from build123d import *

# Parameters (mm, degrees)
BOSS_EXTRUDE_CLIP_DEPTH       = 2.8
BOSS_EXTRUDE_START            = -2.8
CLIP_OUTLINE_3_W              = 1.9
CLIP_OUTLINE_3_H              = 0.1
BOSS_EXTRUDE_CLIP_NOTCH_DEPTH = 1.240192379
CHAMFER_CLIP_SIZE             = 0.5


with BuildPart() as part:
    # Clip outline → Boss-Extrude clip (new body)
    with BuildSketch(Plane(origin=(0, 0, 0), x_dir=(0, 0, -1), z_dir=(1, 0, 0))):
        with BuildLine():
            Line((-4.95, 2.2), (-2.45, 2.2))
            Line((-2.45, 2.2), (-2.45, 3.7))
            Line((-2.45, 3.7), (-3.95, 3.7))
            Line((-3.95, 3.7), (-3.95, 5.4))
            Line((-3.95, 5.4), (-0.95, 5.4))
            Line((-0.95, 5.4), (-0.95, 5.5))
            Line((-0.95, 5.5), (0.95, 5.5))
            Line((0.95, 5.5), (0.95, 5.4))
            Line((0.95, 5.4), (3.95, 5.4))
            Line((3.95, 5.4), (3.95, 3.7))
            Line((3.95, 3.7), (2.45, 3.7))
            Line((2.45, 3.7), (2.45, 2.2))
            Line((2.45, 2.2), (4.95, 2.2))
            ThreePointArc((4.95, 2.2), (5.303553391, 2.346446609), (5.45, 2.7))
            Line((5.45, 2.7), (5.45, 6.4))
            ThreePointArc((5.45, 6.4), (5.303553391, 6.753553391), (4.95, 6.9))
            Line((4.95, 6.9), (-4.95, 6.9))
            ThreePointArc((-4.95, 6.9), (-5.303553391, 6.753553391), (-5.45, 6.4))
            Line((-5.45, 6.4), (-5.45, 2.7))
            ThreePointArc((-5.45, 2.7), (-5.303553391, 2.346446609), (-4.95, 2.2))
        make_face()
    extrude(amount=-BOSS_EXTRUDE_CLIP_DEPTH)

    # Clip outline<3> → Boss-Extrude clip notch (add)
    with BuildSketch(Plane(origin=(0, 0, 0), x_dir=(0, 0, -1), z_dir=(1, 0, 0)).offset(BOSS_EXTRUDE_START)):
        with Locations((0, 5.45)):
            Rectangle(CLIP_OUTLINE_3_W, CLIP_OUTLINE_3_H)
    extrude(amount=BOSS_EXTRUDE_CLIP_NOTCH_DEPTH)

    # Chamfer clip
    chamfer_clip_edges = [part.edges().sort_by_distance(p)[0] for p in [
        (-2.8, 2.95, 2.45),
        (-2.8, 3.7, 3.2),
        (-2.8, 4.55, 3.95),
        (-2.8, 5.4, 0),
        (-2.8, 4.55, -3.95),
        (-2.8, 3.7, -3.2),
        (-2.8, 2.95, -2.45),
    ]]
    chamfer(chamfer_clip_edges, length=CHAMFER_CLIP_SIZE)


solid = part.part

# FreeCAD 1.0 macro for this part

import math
import FreeCAD as App
import Part
import Sketcher
from FreeCAD import Vector
Q = App.Units.Quantity


def edges_at(feature, points):
    """Names of the edges that pass closest to the given points."""
    edges = feature.Shape.Edges
    near = lambda p: min(range(len(edges)), key=lambda i: edges[i].distToShape(Part.Vertex(*p))[0])
    return sorted({f"Edge{near(p) + 1}" for p in points})


def add_polygon(sketch, points):
    """Adds a closed chain of lines whose ends are joined by coincident constraints."""
    first, n = sketch.GeometryCount, len(points)
    for a, b in zip(points, points[1:] + points[:1]):
        sketch.addGeometry(Part.LineSegment(App.Vector(*a, 0), App.Vector(*b, 0)), False)
    for i in range(n):
        sketch.addConstraint(Sketcher.Constraint("Coincident", first + i, 2, first + (i + 1) % n, 1))

doc = App.newDocument("Part")
body = doc.addObject("PartDesign::Body", "Body")

# Sketch on YZ plane
sketch1 = body.newObject("Sketcher::SketchObject", "Sketch")
sketch1.AttachmentSupport = (doc.getObject("YZ_Plane"), [""])
sketch1.MapMode = "FlatFace"
sketch1.addGeometry(Part.LineSegment(Vector(2.2, 4.95, 0), Vector(2.2, 2.45, 0)), False)
sketch1.addGeometry(Part.LineSegment(Vector(2.2, 2.45, 0), Vector(3.7, 2.45, 0)), False)
sketch1.addGeometry(Part.LineSegment(Vector(3.7, 2.45, 0), Vector(3.7, 3.95, 0)), False)
sketch1.addGeometry(Part.LineSegment(Vector(3.7, 3.95, 0), Vector(5.4, 3.95, 0)), False)
sketch1.addGeometry(Part.LineSegment(Vector(5.4, 3.95, 0), Vector(5.4, 0.95, 0)), False)
sketch1.addGeometry(Part.LineSegment(Vector(5.4, 0.95, 0), Vector(5.5, 0.95, 0)), False)
sketch1.addGeometry(Part.LineSegment(Vector(5.5, 0.95, 0), Vector(5.5, -0.95, 0)), False)
sketch1.addGeometry(Part.LineSegment(Vector(5.5, -0.95, 0), Vector(5.4, -0.95, 0)), False)
sketch1.addGeometry(Part.LineSegment(Vector(5.4, -0.95, 0), Vector(5.4, -3.95, 0)), False)
sketch1.addGeometry(Part.LineSegment(Vector(5.4, -3.95, 0), Vector(3.7, -3.95, 0)), False)
sketch1.addGeometry(Part.LineSegment(Vector(3.7, -3.95, 0), Vector(3.7, -2.45, 0)), False)
sketch1.addGeometry(Part.LineSegment(Vector(3.7, -2.45, 0), Vector(2.2, -2.45, 0)), False)
sketch1.addGeometry(Part.LineSegment(Vector(2.2, -2.45, 0), Vector(2.2, -4.95, 0)), False)
sketch1.addGeometry(Part.ArcOfCircle(Part.Circle(Vector(2.7, -4.95, 0), Vector(0, 0, 1), 0.5), math.radians(180), math.radians(270)), False)
sketch1.addGeometry(Part.LineSegment(Vector(2.7, -5.45, 0), Vector(6.4, -5.45, 0)), False)
sketch1.addGeometry(Part.ArcOfCircle(Part.Circle(Vector(6.4, -4.95, 0), Vector(0, 0, 1), 0.5), math.radians(-90), math.radians(0)), False)
sketch1.addGeometry(Part.LineSegment(Vector(6.9, -4.95, 0), Vector(6.9, 4.95, 0)), False)
sketch1.addGeometry(Part.ArcOfCircle(Part.Circle(Vector(6.4, 4.95, 0), Vector(0, 0, 1), 0.5), math.radians(0), math.radians(90)), False)
sketch1.addGeometry(Part.LineSegment(Vector(6.4, 5.45, 0), Vector(2.7, 5.45, 0)), False)
sketch1.addGeometry(Part.ArcOfCircle(Part.Circle(Vector(2.7, 4.95, 0), Vector(0, 0, 1), 0.5), math.radians(90), math.radians(180)), False)
sketch1.addConstraint(Sketcher.Constraint("Coincident", 0, 2, 1, 1))
sketch1.addConstraint(Sketcher.Constraint("Coincident", 1, 2, 2, 1))
sketch1.addConstraint(Sketcher.Constraint("Coincident", 2, 2, 3, 1))
sketch1.addConstraint(Sketcher.Constraint("Coincident", 3, 2, 4, 1))
sketch1.addConstraint(Sketcher.Constraint("Coincident", 4, 2, 5, 1))
sketch1.addConstraint(Sketcher.Constraint("Coincident", 5, 2, 6, 1))
sketch1.addConstraint(Sketcher.Constraint("Coincident", 6, 2, 7, 1))
sketch1.addConstraint(Sketcher.Constraint("Coincident", 7, 2, 8, 1))
sketch1.addConstraint(Sketcher.Constraint("Coincident", 8, 2, 9, 1))
sketch1.addConstraint(Sketcher.Constraint("Coincident", 9, 2, 10, 1))
sketch1.addConstraint(Sketcher.Constraint("Coincident", 10, 2, 11, 1))
sketch1.addConstraint(Sketcher.Constraint("Coincident", 11, 2, 12, 1))
sketch1.addConstraint(Sketcher.Constraint("Tangent", 12, 2, 13, 1))
sketch1.addConstraint(Sketcher.Constraint("Tangent", 13, 2, 14, 1))
sketch1.addConstraint(Sketcher.Constraint("Tangent", 14, 2, 15, 1))
sketch1.addConstraint(Sketcher.Constraint("Tangent", 15, 2, 16, 1))
sketch1.addConstraint(Sketcher.Constraint("Tangent", 16, 2, 17, 1))
sketch1.addConstraint(Sketcher.Constraint("Tangent", 17, 2, 18, 1))
sketch1.addConstraint(Sketcher.Constraint("Tangent", 18, 2, 19, 1))
sketch1.addConstraint(Sketcher.Constraint("Tangent", 19, 2, 0, 1))
sketch1.addConstraint(Sketcher.Constraint("Vertical", 0))
sketch1.addConstraint(Sketcher.Constraint("Horizontal", 1))
sketch1.addConstraint(Sketcher.Constraint("Vertical", 2))
sketch1.addConstraint(Sketcher.Constraint("Horizontal", 3))
sketch1.addConstraint(Sketcher.Constraint("Vertical", 4))
sketch1.addConstraint(Sketcher.Constraint("Horizontal", 5))
sketch1.addConstraint(Sketcher.Constraint("Vertical", 6))
sketch1.addConstraint(Sketcher.Constraint("Horizontal", 7))
sketch1.addConstraint(Sketcher.Constraint("Vertical", 8))
sketch1.addConstraint(Sketcher.Constraint("Horizontal", 9))
sketch1.addConstraint(Sketcher.Constraint("Vertical", 10))
sketch1.addConstraint(Sketcher.Constraint("Horizontal", 11))
sketch1.addConstraint(Sketcher.Constraint("Vertical", 12))
sketch1.addConstraint(Sketcher.Constraint("Horizontal", 14))
sketch1.addConstraint(Sketcher.Constraint("Vertical", 16))
sketch1.addConstraint(Sketcher.Constraint("Horizontal", 18))
sketch1.addConstraint(Sketcher.Constraint("Equal", 13, 15))
sketch1.addConstraint(Sketcher.Constraint("Equal", 15, 17))
sketch1.addConstraint(Sketcher.Constraint("Equal", 17, 19))
sketch1.addConstraint(Sketcher.Constraint("Symmetric", 13, 3, 19, 3, -1))
sketch1.addConstraint(Sketcher.Constraint("Symmetric", 4, 2, 7, 2, -1))
sketch1.addConstraint(Sketcher.Constraint("Symmetric", 2, 2, 9, 2, -1))
sketch1.addConstraint(Sketcher.Constraint("Equal", 11, 2))
sketch1.addConstraint(Sketcher.Constraint("Equal", 2, 10))
sketch1.addConstraint(Sketcher.Constraint("Radius", 13, Q("0.5 mm")))
sketch1.addConstraint(Sketcher.Constraint("DistanceY", 4, 2, 4, 1, Q("3 mm")))
sketch1.addConstraint(Sketcher.Constraint("DistanceX", 1, 1, 1, 2, Q("1.5 mm")))
sketch1.addConstraint(Sketcher.Constraint("DistanceX", 3, 1, 3, 2, Q("1.7 mm")))
sketch1.addConstraint(Sketcher.Constraint("DistanceX", 5, 1, 5, 2, Q("0.1 mm")))
sketch1.addConstraint(Sketcher.Constraint("DistanceX", 14, 1, 14, 2, Q("3.7 mm")))
sketch1.addConstraint(Sketcher.Constraint("DistanceY", 0, 2, 0, 1, Q("2.5 mm")))
sketch1.addConstraint(Sketcher.Constraint("DistanceY", 6, 2, 6, 1, Q("1.9 mm")))
sketch1.addConstraint(Sketcher.Constraint("DistanceX", -1, 1, 13, 3, Q("2.7 mm")))
pad1 = body.newObject("PartDesign::Pad", "Pad")
pad1.Profile = sketch1
pad1.Length = 2.8
pad1.Reversed = True

# Sketch on YZ plane
sketch2 = body.newObject("Sketcher::SketchObject", "Sketch001")
sketch2.AttachmentSupport = (doc.getObject("YZ_Plane"), [""])
sketch2.MapMode = "FlatFace"
sketch2.AttachmentOffset = App.Placement(Vector(0, 0, -2.8), App.Rotation())
add_polygon(sketch2, [(5.5, 0.95), (5.4, 0.95), (5.4, -0.95), (5.5, -0.95)])  # lines 0-3
sketch2.addConstraint(Sketcher.Constraint("Horizontal", 0))
sketch2.addConstraint(Sketcher.Constraint("Vertical", 1))
sketch2.addConstraint(Sketcher.Constraint("Horizontal", 2))
sketch2.addConstraint(Sketcher.Constraint("Vertical", 3))
sketch2.addConstraint(Sketcher.Constraint("DistanceX", 0, 2, 0, 1, Q("0.1 mm")))
sketch2.addConstraint(Sketcher.Constraint("DistanceY", 1, 2, 1, 1, Q("1.9 mm")))
sketch2.addConstraint(Sketcher.Constraint("DistanceX", -1, 1, 0, 2, Q("5.4 mm")))
sketch2.addConstraint(Sketcher.Constraint("DistanceY", -1, 1, 0, 2, Q("0.95 mm")))
pad2 = body.newObject("PartDesign::Pad", "Pad001")
pad2.Profile = sketch2
pad2.Length = 1.240192
doc.recompute()

chamfer = body.newObject("PartDesign::Chamfer", "Chamfer")
chamfer.Base = (pad2, edges_at(pad2, [
    (-2.8, 2.95, 2.45),
    (-2.8, 3.7, 3.2),
    (-2.8, 4.55, 3.95),
    (-2.8, 5.4, 0),
    (-2.8, 4.55, -3.95),
    (-2.8, 3.7, -3.2),
    (-2.8, 2.95, -2.45),
]))
chamfer.Size = 0.5

doc.recompute()
